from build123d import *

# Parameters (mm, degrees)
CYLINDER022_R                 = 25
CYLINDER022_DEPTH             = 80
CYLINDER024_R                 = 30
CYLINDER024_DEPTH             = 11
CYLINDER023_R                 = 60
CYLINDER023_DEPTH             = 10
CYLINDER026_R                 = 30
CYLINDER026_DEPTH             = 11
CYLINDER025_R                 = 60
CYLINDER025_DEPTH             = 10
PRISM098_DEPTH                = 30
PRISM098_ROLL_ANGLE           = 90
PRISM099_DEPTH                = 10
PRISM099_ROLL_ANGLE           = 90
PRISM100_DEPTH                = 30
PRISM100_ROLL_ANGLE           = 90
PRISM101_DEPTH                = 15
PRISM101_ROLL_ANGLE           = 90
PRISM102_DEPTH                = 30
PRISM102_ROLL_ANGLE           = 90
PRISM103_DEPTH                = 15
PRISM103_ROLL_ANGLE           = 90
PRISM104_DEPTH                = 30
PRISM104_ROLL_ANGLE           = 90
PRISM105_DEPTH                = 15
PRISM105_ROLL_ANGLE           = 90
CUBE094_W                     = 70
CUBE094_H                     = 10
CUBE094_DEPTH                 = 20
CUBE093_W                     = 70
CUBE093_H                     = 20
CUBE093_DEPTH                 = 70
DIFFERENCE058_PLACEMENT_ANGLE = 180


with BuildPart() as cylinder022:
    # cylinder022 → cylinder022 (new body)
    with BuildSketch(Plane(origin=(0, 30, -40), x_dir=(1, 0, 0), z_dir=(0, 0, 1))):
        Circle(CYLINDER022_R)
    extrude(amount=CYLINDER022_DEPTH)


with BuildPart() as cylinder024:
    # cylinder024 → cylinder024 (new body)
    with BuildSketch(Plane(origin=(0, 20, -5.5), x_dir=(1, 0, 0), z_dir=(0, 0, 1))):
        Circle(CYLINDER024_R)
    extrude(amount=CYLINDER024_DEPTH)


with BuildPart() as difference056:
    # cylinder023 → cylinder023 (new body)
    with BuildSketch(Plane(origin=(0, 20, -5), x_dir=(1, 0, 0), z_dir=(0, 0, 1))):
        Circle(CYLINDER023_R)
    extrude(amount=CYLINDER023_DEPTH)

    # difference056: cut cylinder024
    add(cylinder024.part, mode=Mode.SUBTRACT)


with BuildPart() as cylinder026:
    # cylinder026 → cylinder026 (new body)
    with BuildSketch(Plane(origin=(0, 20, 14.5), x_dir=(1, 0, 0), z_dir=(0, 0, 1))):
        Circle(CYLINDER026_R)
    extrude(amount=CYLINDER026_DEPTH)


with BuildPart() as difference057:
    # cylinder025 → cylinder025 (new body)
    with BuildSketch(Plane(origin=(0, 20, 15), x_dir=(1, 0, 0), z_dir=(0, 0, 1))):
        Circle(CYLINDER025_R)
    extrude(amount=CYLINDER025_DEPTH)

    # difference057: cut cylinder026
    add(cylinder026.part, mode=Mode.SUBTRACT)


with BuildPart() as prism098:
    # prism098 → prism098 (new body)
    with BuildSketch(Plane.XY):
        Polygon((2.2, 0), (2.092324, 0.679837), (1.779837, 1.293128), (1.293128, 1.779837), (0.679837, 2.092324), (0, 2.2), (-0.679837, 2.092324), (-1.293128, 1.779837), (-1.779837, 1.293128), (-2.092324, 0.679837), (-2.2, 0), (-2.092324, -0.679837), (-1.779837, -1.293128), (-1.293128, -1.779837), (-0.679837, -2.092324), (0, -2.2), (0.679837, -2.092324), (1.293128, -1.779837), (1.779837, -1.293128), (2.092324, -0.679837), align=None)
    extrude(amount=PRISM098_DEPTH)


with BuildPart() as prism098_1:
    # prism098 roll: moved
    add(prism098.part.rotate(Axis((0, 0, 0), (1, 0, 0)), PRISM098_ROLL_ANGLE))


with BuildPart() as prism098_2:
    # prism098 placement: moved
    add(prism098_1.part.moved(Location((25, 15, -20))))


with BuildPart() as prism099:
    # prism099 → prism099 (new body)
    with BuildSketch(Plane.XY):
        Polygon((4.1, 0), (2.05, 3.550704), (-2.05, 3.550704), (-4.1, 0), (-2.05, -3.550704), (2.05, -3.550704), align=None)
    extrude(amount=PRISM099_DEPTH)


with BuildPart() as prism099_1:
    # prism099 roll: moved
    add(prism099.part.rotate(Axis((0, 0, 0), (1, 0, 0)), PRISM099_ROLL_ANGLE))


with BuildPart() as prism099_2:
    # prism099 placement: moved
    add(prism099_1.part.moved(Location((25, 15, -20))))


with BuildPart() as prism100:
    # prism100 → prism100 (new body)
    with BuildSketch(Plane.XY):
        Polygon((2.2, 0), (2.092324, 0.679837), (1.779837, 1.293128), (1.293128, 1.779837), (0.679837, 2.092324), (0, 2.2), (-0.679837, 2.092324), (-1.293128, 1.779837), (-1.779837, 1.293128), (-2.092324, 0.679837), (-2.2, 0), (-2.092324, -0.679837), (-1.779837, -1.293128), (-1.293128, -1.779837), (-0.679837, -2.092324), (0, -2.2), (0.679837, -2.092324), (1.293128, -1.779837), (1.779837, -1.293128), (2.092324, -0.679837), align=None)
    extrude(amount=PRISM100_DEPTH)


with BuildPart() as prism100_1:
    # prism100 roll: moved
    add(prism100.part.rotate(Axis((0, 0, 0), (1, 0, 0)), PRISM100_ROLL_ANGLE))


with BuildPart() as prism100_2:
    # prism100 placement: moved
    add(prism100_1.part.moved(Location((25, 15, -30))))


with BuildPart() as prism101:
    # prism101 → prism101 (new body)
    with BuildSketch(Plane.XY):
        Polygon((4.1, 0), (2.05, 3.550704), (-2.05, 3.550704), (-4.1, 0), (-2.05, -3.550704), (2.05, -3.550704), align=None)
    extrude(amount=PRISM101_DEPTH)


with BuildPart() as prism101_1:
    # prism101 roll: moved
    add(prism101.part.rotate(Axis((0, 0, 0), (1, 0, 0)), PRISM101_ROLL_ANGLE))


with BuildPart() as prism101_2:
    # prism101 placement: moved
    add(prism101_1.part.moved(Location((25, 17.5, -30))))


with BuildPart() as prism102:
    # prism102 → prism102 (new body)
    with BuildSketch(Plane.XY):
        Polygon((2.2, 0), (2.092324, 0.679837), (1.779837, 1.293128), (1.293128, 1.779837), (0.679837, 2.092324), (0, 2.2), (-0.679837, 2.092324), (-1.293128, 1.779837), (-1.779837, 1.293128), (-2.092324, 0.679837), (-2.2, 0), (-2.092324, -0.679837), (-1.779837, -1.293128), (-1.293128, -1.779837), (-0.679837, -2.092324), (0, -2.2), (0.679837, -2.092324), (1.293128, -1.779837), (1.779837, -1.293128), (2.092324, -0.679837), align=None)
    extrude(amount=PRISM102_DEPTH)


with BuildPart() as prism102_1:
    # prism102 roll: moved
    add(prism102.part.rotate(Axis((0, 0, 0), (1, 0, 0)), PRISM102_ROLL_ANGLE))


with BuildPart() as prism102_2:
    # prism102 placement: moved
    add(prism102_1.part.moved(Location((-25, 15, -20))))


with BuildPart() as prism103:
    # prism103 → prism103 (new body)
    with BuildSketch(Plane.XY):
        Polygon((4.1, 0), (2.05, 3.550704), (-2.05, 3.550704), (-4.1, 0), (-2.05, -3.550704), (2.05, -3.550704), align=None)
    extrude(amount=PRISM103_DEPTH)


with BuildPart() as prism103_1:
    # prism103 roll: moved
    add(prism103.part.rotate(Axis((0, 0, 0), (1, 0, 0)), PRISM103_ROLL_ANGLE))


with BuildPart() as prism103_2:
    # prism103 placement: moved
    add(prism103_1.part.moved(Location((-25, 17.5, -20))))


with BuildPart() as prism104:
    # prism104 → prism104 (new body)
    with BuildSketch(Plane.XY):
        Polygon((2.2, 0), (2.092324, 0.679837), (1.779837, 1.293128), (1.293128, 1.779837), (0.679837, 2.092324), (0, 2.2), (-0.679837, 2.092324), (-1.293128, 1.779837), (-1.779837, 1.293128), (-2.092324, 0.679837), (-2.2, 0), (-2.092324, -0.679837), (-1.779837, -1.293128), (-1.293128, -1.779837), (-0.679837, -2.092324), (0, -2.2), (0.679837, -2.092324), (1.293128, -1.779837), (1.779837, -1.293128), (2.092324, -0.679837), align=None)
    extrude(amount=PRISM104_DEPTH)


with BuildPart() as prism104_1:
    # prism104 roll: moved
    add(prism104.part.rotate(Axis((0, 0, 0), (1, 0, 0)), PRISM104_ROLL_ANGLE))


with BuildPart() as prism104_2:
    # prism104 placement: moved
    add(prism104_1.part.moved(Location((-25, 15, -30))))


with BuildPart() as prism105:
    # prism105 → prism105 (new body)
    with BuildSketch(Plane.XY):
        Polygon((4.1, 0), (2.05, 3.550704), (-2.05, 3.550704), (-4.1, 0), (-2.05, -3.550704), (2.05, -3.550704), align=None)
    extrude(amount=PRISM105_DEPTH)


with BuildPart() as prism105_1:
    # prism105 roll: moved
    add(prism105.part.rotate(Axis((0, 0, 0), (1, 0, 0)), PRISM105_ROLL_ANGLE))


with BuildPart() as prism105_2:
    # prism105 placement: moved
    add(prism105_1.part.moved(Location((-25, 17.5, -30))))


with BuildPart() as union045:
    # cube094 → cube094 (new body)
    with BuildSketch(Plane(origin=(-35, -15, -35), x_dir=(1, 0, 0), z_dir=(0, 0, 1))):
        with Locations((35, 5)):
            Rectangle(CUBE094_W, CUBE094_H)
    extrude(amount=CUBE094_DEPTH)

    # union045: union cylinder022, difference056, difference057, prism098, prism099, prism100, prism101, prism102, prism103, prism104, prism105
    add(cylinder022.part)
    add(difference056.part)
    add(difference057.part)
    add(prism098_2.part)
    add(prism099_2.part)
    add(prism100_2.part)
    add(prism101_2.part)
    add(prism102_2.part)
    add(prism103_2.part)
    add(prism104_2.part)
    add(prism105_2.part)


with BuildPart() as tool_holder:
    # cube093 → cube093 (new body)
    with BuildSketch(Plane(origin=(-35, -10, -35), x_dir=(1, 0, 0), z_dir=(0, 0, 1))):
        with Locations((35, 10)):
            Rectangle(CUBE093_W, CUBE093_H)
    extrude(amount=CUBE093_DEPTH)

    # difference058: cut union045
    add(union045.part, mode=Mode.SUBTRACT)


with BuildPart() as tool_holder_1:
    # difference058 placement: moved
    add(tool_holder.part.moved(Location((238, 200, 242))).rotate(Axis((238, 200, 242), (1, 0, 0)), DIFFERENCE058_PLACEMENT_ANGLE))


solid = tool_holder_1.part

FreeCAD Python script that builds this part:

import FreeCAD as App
import Part
import Sketcher
Q = App.Units.Quantity


def add_polygon(sketch, points):
    """Adds a closed chain of lines whose ends are joined by coincident constraints."""
    first, n = sketch.GeometryCount, len(points)
    for a, b in zip(points, points[1:] + points[:1]):
        sketch.addGeometry(Part.LineSegment(App.Vector(*a, 0), App.Vector(*b, 0)), False)
    for i in range(n):
        sketch.addConstraint(Sketcher.Constraint("Coincident", first + i, 2, first + (i + 1) % n, 1))

doc = App.newDocument("Part")
params = doc.addObject("Spreadsheet::Sheet", "Params")
for row, (alias, value) in enumerate([
    ("sketch1_diameter", "50 mm"),
    ("pad1_length", "80 mm"),
    ("sketch2_diameter", "60 mm"),
    ("pad2_length", "11 mm"),
    ("sketch3_diameter", "120 mm"),
    ("pad3_length", "10 mm"),
    ("sketch4_diameter", "60 mm"),
    ("pad4_length", "11 mm"),
    ("sketch5_diameter", "120 mm"),
    ("pad5_length", "10 mm"),
    ("pad6_length", "30 mm"),
    ("sketch7_width", "4.1 mm"),
    ("sketch7_length", "4.1 mm"),
    ("pad7_length", "10 mm"),
    ("pad8_length", "30 mm"),
    ("sketch9_width", "4.1 mm"),
    ("sketch9_length", "4.1 mm"),
    ("pad9_length", "15 mm"),
    ("pad10_length", "30 mm"),
    ("sketch11_width", "4.1 mm"),
    ("sketch11_length", "4.1 mm"),
    ("pad11_length", "15 mm"),
    ("pad12_length", "30 mm"),
    ("sketch13_width", "4.1 mm"),
    ("sketch13_length", "4.1 mm"),
    ("pad13_length", "15 mm"),
    ("sketch14_width", "70 mm"),
    ("sketch14_height", "10 mm"),
    ("pad14_length", "20 mm"),
    ("sketch15_width", "70 mm"),
    ("sketch15_height", "20 mm"),
    ("pad15_length", "70 mm"),
], start=1):
    params.set(f"A{row}", alias)
    params.set(f"B{row}", "=" + value)
    params.setAlias(f"B{row}", alias)

body = doc.addObject("PartDesign::Body", "Body")

sketch1 = doc.addObject("Sketcher::SketchObject", "Sketch")
body.addObject(sketch1)
sketch1.AttachmentSupport = (doc.XY_Plane, [""])
sketch1.MapMode = "FlatFace"
sketch1.AttachmentOffset = App.Placement(App.Vector(0, 0, -40), App.Rotation())
sketch1.addGeometry(Part.Circle(App.Vector(0, 30, 0), App.Vector(0, 0, 1), 25), False)
sketch1.addConstraint([
    Sketcher.Constraint("PointOnObject", 0, 3, -2),
    Sketcher.Constraint("Diameter", 0, Q("50 mm")),
    Sketcher.Constraint("DistanceY", -1, 1, 0, 3, Q("30 mm")),
])
sketch1.setExpression("Constraints[1]", "Params.sketch1_diameter")
pad1 = doc.addObject("PartDesign::Pad", "Pad")
body.addObject(pad1)
pad1.Profile = sketch1
pad1.setExpression("Length", "Params.pad1_length")
body2 = doc.addObject("PartDesign::Body", "Body001")

sketch2 = doc.addObject("Sketcher::SketchObject", "Sketch001")
body2.addObject(sketch2)
sketch2.AttachmentSupport = (doc.getObject("XY_Plane001"), [""])
sketch2.MapMode = "FlatFace"
sketch2.AttachmentOffset = App.Placement(App.Vector(0, 0, -5.5), App.Rotation())
sketch2.addGeometry(Part.Circle(App.Vector(0, 20, 0), App.Vector(0, 0, 1), 30), False)
sketch2.addConstraint([
    Sketcher.Constraint("PointOnObject", 0, 3, -2),
    Sketcher.Constraint("Diameter", 0, Q("60 mm")),
    Sketcher.Constraint("DistanceY", -1, 1, 0, 3, Q("20 mm")),
])
sketch2.setExpression("Constraints[1]", "Params.sketch2_diameter")
pad2 = doc.addObject("PartDesign::Pad", "Pad001")
body2.addObject(pad2)
pad2.Profile = sketch2
pad2.setExpression("Length", "Params.pad2_length")
body3 = doc.addObject("PartDesign::Body", "Body002")

sketch3 = doc.addObject("Sketcher::SketchObject", "Sketch002")
body3.addObject(sketch3)
sketch3.AttachmentSupport = (doc.getObject("XY_Plane002"), [""])
sketch3.MapMode = "FlatFace"
sketch3.AttachmentOffset = App.Placement(App.Vector(0, 0, -5), App.Rotation())
sketch3.addGeometry(Part.Circle(App.Vector(0, 20, 0), App.Vector(0, 0, 1), 60), False)
sketch3.addConstraint([
    Sketcher.Constraint("PointOnObject", 0, 3, -2),
    Sketcher.Constraint("Diameter", 0, Q("120 mm")),
    Sketcher.Constraint("DistanceY", -1, 1, 0, 3, Q("20 mm")),
])
sketch3.setExpression("Constraints[1]", "Params.sketch3_diameter")
pad3 = doc.addObject("PartDesign::Pad", "Pad002")
body3.addObject(pad3)
pad3.Profile = sketch3
pad3.setExpression("Length", "Params.pad3_length")
doc.recompute()

boolean = doc.addObject("PartDesign::Boolean", "Boolean")
body3.addObject(boolean)
boolean.Type = "Cut"
boolean.addObjects([body2])
body4 = doc.addObject("PartDesign::Body", "Body003")

sketch4 = doc.addObject("Sketcher::SketchObject", "Sketch003")
body4.addObject(sketch4)
sketch4.AttachmentSupport = (doc.getObject("XY_Plane003"), [""])
sketch4.MapMode = "FlatFace"
sketch4.AttachmentOffset = App.Placement(App.Vector(0, 0, 14.5), App.Rotation())
sketch4.addGeometry(Part.Circle(App.Vector(0, 20, 0), App.Vector(0, 0, 1), 30), False)
sketch4.addConstraint([
    Sketcher.Constraint("PointOnObject", 0, 3, -2),
    Sketcher.Constraint("Diameter", 0, Q("60 mm")),
    Sketcher.Constraint("DistanceY", -1, 1, 0, 3, Q("20 mm")),
])
sketch4.setExpression("Constraints[1]", "Params.sketch4_diameter")
pad4 = doc.addObject("PartDesign::Pad", "Pad003")
body4.addObject(pad4)
pad4.Profile = sketch4
pad4.setExpression("Length", "Params.pad4_length")
body5 = doc.addObject("PartDesign::Body", "Body004")

sketch5 = doc.addObject("Sketcher::SketchObject", "Sketch004")
body5.addObject(sketch5)
sketch5.AttachmentSupport = (doc.getObject("XY_Plane004"), [""])
sketch5.MapMode = "FlatFace"
sketch5.AttachmentOffset = App.Placement(App.Vector(0, 0, 15), App.Rotation())
sketch5.addGeometry(Part.Circle(App.Vector(0, 20, 0), App.Vector(0, 0, 1), 60), False)
sketch5.addConstraint([
    Sketcher.Constraint("PointOnObject", 0, 3, -2),
    Sketcher.Constraint("Diameter", 0, Q("120 mm")),
    Sketcher.Constraint("DistanceY", -1, 1, 0, 3, Q("20 mm")),
])
sketch5.setExpression("Constraints[1]", "Params.sketch5_diameter")
pad5 = doc.addObject("PartDesign::Pad", "Pad004")
body5.addObject(pad5)
pad5.Profile = sketch5
pad5.setExpression("Length", "Params.pad5_length")
doc.recompute()

boolean2 = doc.addObject("PartDesign::Boolean", "Boolean001")
body5.addObject(boolean2)
boolean2.Type = "Cut"
boolean2.addObjects([body4])
body6 = doc.addObject("PartDesign::Body", "Body005")

sketch6 = doc.addObject("Sketcher::SketchObject", "Sketch005")
body6.addObject(sketch6)
sketch6.AttachmentSupport = (doc.getObject("XY_Plane005"), [""])
sketch6.MapMode = "FlatFace"
add_polygon(sketch6, [(2.2, 0), (2.092324, 0.679837), (1.779837, 1.293128), (1.293128, 1.779837), (0.679837, 2.092324), (0, 2.2), (-0.679837, 2.092324), (-1.293128, 1.779837), (-1.779837, 1.293128), (-2.092324, 0.679837), (-2.2, 0), (-2.092324, -0.679837), (-1.779837, -1.293128), (-1.293128, -1.779837), (-0.679837, -2.092324), (0, -2.2), (0.679837, -2.092324), (1.293128, -1.779837), (1.779837, -1.293128), (2.092324, -0.679837)])
sketch6.addConstraint([
    Sketcher.Constraint("Symmetric", 0, 2, 10, 2, -1, 1),
    Sketcher.Constraint("Symmetric", 1, 2, 11, 2, -1, 1),
    Sketcher.Constraint("Symmetric", 2, 2, 12, 2, -1, 1),
    Sketcher.Constraint("Symmetric", 3, 2, 13, 2, -1, 1),
    Sketcher.Constraint("Symmetric", 4, 2, 14, 2, -1, 1),
    Sketcher.Constraint("Symmetric", 5, 2, 15, 2, -1, 1),
    Sketcher.Constraint("Symmetric", 6, 2, 16, 2, -1, 1),
    Sketcher.Constraint("Symmetric", 7, 2, 17, 2, -1, 1),
    Sketcher.Constraint("Symmetric", 8, 2, 18, 2, -1, 1),
    Sketcher.Constraint("Symmetric", 9, 2, 19, 2, -1, 1),
    Sketcher.Constraint("Symmetric", 3, 2, 5, 2, -2),
    Sketcher.Constraint("Symmetric", 2, 2, 6, 2, -2),
    Sketcher.Constraint("Symmetric", 1, 2, 7, 2, -2),
    Sketcher.Constraint("Symmetric", 0, 2, 8, 2, -2),
    Sketcher.Constraint("PointOnObject", 4, 2, -2),
    Sketcher.Constraint("PointOnObject", 9, 2, -1),
    Sketcher.Constraint("Perpendicular", 0, 5),
    Sketcher.Constraint("Perpendicular", 1, 6),
    Sketcher.Constraint("Perpendicular", 2, 7),
    Sketcher.Constraint("Equal", 0, 1),
    Sketcher.Constraint("Equal", 1, 2),
    Sketcher.Constraint("Equal", 2, 3),
    Sketcher.Constraint("Equal", 3, 4),
    Sketcher.Constraint("DistanceY", -1, 1, 4, 2, Q("2.2 mm")),
    Sketcher.Constraint("DistanceY", 0, 2, 2, 2, Q("1.1 mm")),
    Sketcher.Constraint("Distance", 0, Q("0.688311 mm")),
])
pad6 = doc.addObject("PartDesign::Pad", "Pad005")
body6.addObject(pad6)
pad6.Profile = sketch6
pad6.setExpression("Length", "Params.pad6_length")
body7 = doc.addObject("PartDesign::Body", "Body006")
doc.recompute()

body6.Placement = App.Placement(App.Vector(0, 0, 0), App.Rotation(App.Vector(1, 0, 0), 90))
boolean3 = doc.addObject("PartDesign::Boolean", "Boolean002")
body7.addObject(boolean3)
boolean3.Type = "Fuse"
boolean3.addObjects([body6])
body8 = doc.addObject("PartDesign::Body", "Body007")
doc.recompute()

body7.Placement = App.Placement(App.Vector(25, 15, -20), App.Rotation(App.Vector(0, 0, 1), 0))
boolean4 = doc.addObject("PartDesign::Boolean", "Boolean003")
body8.addObject(boolean4)
boolean4.Type = "Fuse"
boolean4.addObjects([body7])
body9 = doc.addObject("PartDesign::Body", "Body008")

sketch7 = doc.addObject("Sketcher::SketchObject", "Sketch006")
body9.addObject(sketch7)
sketch7.AttachmentSupport = (doc.getObject("XY_Plane008"), [""])
sketch7.MapMode = "FlatFace"
add_polygon(sketch7, [(4.1, 0), (2.05, 3.550704), (-2.05, 3.550704), (-4.1, 0), (-2.05, -3.550704), (2.05, -3.550704)])
sketch7.addConstraint([
    Sketcher.Constraint("Horizontal", 1),
    Sketcher.Constraint("Horizontal", 4),
    Sketcher.Constraint("Symmetric", 0, 2, 3, 2, -1, 1),
    Sketcher.Constraint("Symmetric", 2, 2, 5, 2, -1, 1),
    Sketcher.Constraint("PointOnObject", 2, 2, -1),
    Sketcher.Constraint("Parallel", 2, 5),
    Sketcher.Constraint("Vertical", 1, 2, 3, 2),
    Sketcher.Constraint("Angle", 0, Q("120.000001 deg")),
    Sketcher.Constraint("DistanceX", 1, 2, 1, 1, Q("4.1 mm")),
    Sketcher.Constraint("Distance", 0, Q("4.1 mm")),
])
sketch7.setExpression("Constraints[14]", "Params.sketch7_width")
sketch7.setExpression("Constraints[15]", "Params.sketch7_length")
pad7 = doc.addObject("PartDesign::Pad", "Pad006")
body9.addObject(pad7)
pad7.Profile = sketch7
pad7.setExpression("Length", "Params.pad7_length")
body10 = doc.addObject("PartDesign::Body", "Body009")
doc.recompute()

body9.Placement = App.Placement(App.Vector(0, 0, 0), App.Rotation(App.Vector(1, 0, 0), 90))
boolean5 = doc.addObject("PartDesign::Boolean", "Boolean004")
body10.addObject(boolean5)
boolean5.Type = "Fuse"
boolean5.addObjects([body9])
body11 = doc.addObject("PartDesign::Body", "Body010")
doc.recompute()

body10.Placement = App.Placement(App.Vector(25, 15, -20), App.Rotation(App.Vector(0, 0, 1), 0))
boolean6 = doc.addObject("PartDesign::Boolean", "Boolean005")
body11.addObject(boolean6)
boolean6.Type = "Fuse"
boolean6.addObjects([body10])
body12 = doc.addObject("PartDesign::Body", "Body011")

sketch8 = doc.addObject("Sketcher::SketchObject", "Sketch007")
body12.addObject(sketch8)
sketch8.AttachmentSupport = (doc.getObject("XY_Plane011"), [""])
sketch8.MapMode = "FlatFace"
add_polygon(sketch8, [(2.2, 0), (2.092324, 0.679837), (1.779837, 1.293128), (1.293128, 1.779837), (0.679837, 2.092324), (0, 2.2), (-0.679837, 2.092324), (-1.293128, 1.779837), (-1.779837, 1.293128), (-2.092324, 0.679837), (-2.2, 0), (-2.092324, -0.679837), (-1.779837, -1.293128), (-1.293128, -1.779837), (-0.679837, -2.092324), (0, -2.2), (0.679837, -2.092324), (1.293128, -1.779837), (1.779837, -1.293128), (2.092324, -0.679837)])
sketch8.addConstraint([
    Sketcher.Constraint("Symmetric", 0, 2, 10, 2, -1, 1),
    Sketcher.Constraint("Symmetric", 1, 2, 11, 2, -1, 1),
    Sketcher.Constraint("Symmetric", 2, 2, 12, 2, -1, 1),
    Sketcher.Constraint("Symmetric", 3, 2, 13, 2, -1, 1),
    Sketcher.Constraint("Symmetric", 4, 2, 14, 2, -1, 1),
    Sketcher.Constraint("Symmetric", 5, 2, 15, 2, -1, 1),
    Sketcher.Constraint("Symmetric", 6, 2, 16, 2, -1, 1),
    Sketcher.Constraint("Symmetric", 7, 2, 17, 2, -1, 1),
    Sketcher.Constraint("Symmetric", 8, 2, 18, 2, -1, 1),
    Sketcher.Constraint("Symmetric", 9, 2, 19, 2, -1, 1),
    Sketcher.Constraint("Symmetric", 3, 2, 5, 2, -2),
    Sketcher.Constraint("Symmetric", 2, 2, 6, 2, -2),
    Sketcher.Constraint("Symmetric", 1, 2, 7, 2, -2),
    Sketcher.Constraint("Symmetric", 0, 2, 8, 2, -2),
    Sketcher.Constraint("PointOnObject", 4, 2, -2),
    Sketcher.Constraint("PointOnObject", 9, 2, -1),
    Sketcher.Constraint("Perpendicular", 0, 5),
    Sketcher.Constraint("Perpendicular", 1, 6),
    Sketcher.Constraint("Perpendicular", 2, 7),
    Sketcher.Constraint("Equal", 0, 1),
    Sketcher.Constraint("Equal", 1, 2),
    Sketcher.Constraint("Equal", 2, 3),
    Sketcher.Constraint("Equal", 3, 4),
    Sketcher.Constraint("DistanceY", -1, 1, 4, 2, Q("2.2 mm")),
    Sketcher.Constraint("DistanceY", 0, 2, 2, 2, Q("1.1 mm")),
    Sketcher.Constraint("Distance", 0, Q("0.688311 mm")),
])
pad8 = doc.addObject("PartDesign::Pad", "Pad007")
body12.addObject(pad8)
pad8.Profile = sketch8
pad8.setExpression("Length", "Params.pad8_length")
body13 = doc.addObject("PartDesign::Body", "Body012")
doc.recompute()

body12.Placement = App.Placement(App.Vector(0, 0, 0), App.Rotation(App.Vector(1, 0, 0), 90))
boolean7 = doc.addObject("PartDesign::Boolean", "Boolean006")
body13.addObject(boolean7)
boolean7.Type = "Fuse"
boolean7.addObjects([body12])
body14 = doc.addObject("PartDesign::Body", "Body013")
doc.recompute()

body13.Placement = App.Placement(App.Vector(25, 15, -30), App.Rotation(App.Vector(0, 0, 1), 0))
boolean8 = doc.addObject("PartDesign::Boolean", "Boolean007")
body14.addObject(boolean8)
boolean8.Type = "Fuse"
boolean8.addObjects([body13])
body15 = doc.addObject("PartDesign::Body", "Body014")

sketch9 = doc.addObject("Sketcher::SketchObject", "Sketch008")
body15.addObject(sketch9)
sketch9.AttachmentSupport = (doc.getObject("XY_Plane014"), [""])
sketch9.MapMode = "FlatFace"
add_polygon(sketch9, [(4.1, 0), (2.05, 3.550704), (-2.05, 3.550704), (-4.1, 0), (-2.05, -3.550704), (2.05, -3.550704)])
sketch9.addConstraint([
    Sketcher.Constraint("Horizontal", 1),
    Sketcher.Constraint("Horizontal", 4),
    Sketcher.Constraint("Symmetric", 0, 2, 3, 2, -1, 1),
    Sketcher.Constraint("Symmetric", 2, 2, 5, 2, -1, 1),
    Sketcher.Constraint("PointOnObject", 2, 2, -1),
    Sketcher.Constraint("Parallel", 2, 5),
    Sketcher.Constraint("Vertical", 1, 2, 3, 2),
    Sketcher.Constraint("Angle", 0, Q("120.000001 deg")),
    Sketcher.Constraint("DistanceX", 1, 2, 1, 1, Q("4.1 mm")),
    Sketcher.Constraint("Distance", 0, Q("4.1 mm")),
])
sketch9.setExpression("Constraints[14]", "Params.sketch9_width")
sketch9.setExpression("Constraints[15]", "Params.sketch9_length")
pad9 = doc.addObject("PartDesign::Pad", "Pad008")
body15.addObject(pad9)
pad9.Profile = sketch9
pad9.setExpression("Length", "Params.pad9_length")
body16 = doc.addObject("PartDesign::Body", "Body015")
doc.recompute()

body15.Placement = App.Placement(App.Vector(0, 0, 0), App.Rotation(App.Vector(1, 0, 0), 90))
boolean9 = doc.addObject("PartDesign::Boolean", "Boolean008")
body16.addObject(boolean9)
boolean9.Type = "Fuse"
boolean9.addObjects([body15])
body17 = doc.addObject("PartDesign::Body", "Body016")
doc.recompute()

body16.Placement = App.Placement(App.Vector(25, 17.5, -30), App.Rotation(App.Vector(0, 0, 1), 0))
boolean10 = doc.addObject("PartDesign::Boolean", "Boolean009")
body17.addObject(boolean10)
boolean10.Type = "Fuse"
boolean10.addObjects([body16])
body18 = doc.addObject("PartDesign::Body", "Body017")

sketch10 = doc.addObject("Sketcher::SketchObject", "Sketch009")
body18.addObject(sketch10)
sketch10.AttachmentSupport = (doc.getObject("XY_Plane017"), [""])
sketch10.MapMode = "FlatFace"
add_polygon(sketch10, [(2.2, 0), (2.092324, 0.679837), (1.779837, 1.293128), (1.293128, 1.779837), (0.679837, 2.092324), (0, 2.2), (-0.679837, 2.092324), (-1.293128, 1.779837), (-1.779837, 1.293128), (-2.092324, 0.679837), (-2.2, 0), (-2.092324, -0.679837), (-1.779837, -1.293128), (-1.293128, -1.779837), (-0.679837, -2.092324), (0, -2.2), (0.679837, -2.092324), (1.293128, -1.779837), (1.779837, -1.293128), (2.092324, -0.679837)])
sketch10.addConstraint([
    Sketcher.Constraint("Symmetric", 0, 2, 10, 2, -1, 1),
    Sketcher.Constraint("Symmetric", 1, 2, 11, 2, -1, 1),
    Sketcher.Constraint("Symmetric", 2, 2, 12, 2, -1, 1),
    Sketcher.Constraint("Symmetric", 3, 2, 13, 2, -1, 1),
    Sketcher.Constraint("Symmetric", 4, 2, 14, 2, -1, 1),
    Sketcher.Constraint("Symmetric", 5, 2, 15, 2, -1, 1),
    Sketcher.Constraint("Symmetric", 6, 2, 16, 2, -1, 1),
    Sketcher.Constraint("Symmetric", 7, 2, 17, 2, -1, 1),
    Sketcher.Constraint("Symmetric", 8, 2, 18, 2, -1, 1),
    Sketcher.Constraint("Symmetric", 9, 2, 19, 2, -1, 1),
    Sketcher.Constraint("Symmetric", 3, 2, 5, 2, -2),
    Sketcher.Constraint("Symmetric", 2, 2, 6, 2, -2),
    Sketcher.Constraint("Symmetric", 1, 2, 7, 2, -2),
    Sketcher.Constraint("Symmetric", 0, 2, 8, 2, -2),
    Sketcher.Constraint("PointOnObject", 4, 2, -2),
    Sketcher.Constraint("PointOnObject", 9, 2, -1),
    Sketcher.Constraint("Perpendicular", 0, 5),
    Sketcher.Constraint("Perpendicular", 1, 6),
    Sketcher.Constraint("Perpendicular", 2, 7),
    Sketcher.Constraint("Equal", 0, 1),
    Sketcher.Constraint("Equal", 1, 2),
    Sketcher.Constraint("Equal", 2, 3),
    Sketcher.Constraint("Equal", 3, 4),
    Sketcher.Constraint("DistanceY", -1, 1, 4, 2, Q("2.2 mm")),
    Sketcher.Constraint("DistanceY", 0, 2, 2, 2, Q("1.1 mm")),
    Sketcher.Constraint("Distance", 0, Q("0.688311 mm")),
])
pad10 = doc.addObject("PartDesign::Pad", "Pad009")
body18.addObject(pad10)
pad10.Profile = sketch10
pad10.setExpression("Length", "Params.pad10_length")
body19 = doc.addObject("PartDesign::Body", "Body018")
doc.recompute()

body18.Placement = App.Placement(App.Vector(0, 0, 0), App.Rotation(App.Vector(1, 0, 0), 90))
boolean11 = doc.addObject("PartDesign::Boolean", "Boolean010")
body19.addObject(boolean11)
boolean11.Type = "Fuse"
boolean11.addObjects([body18])
body20 = doc.addObject("PartDesign::Body", "Body019")
doc.recompute()

body19.Placement = App.Placement(App.Vector(-25, 15, -20), App.Rotation(App.Vector(0, 0, 1), 0))
boolean12 = doc.addObject("PartDesign::Boolean", "Boolean011")
body20.addObject(boolean12)
boolean12.Type = "Fuse"
boolean12.addObjects([body19])
body21 = doc.addObject("PartDesign::Body", "Body020")

sketch11 = doc.addObject("Sketcher::SketchObject", "Sketch010")
body21.addObject(sketch11)
sketch11.AttachmentSupport = (doc.getObject("XY_Plane020"), [""])
sketch11.MapMode = "FlatFace"
add_polygon(sketch11, [(4.1, 0), (2.05, 3.550704), (-2.05, 3.550704), (-4.1, 0), (-2.05, -3.550704), (2.05, -3.550704)])
sketch11.addConstraint([
    Sketcher.Constraint("Horizontal", 1),
    Sketcher.Constraint("Horizontal", 4),
    Sketcher.Constraint("Symmetric", 0, 2, 3, 2, -1, 1),
    Sketcher.Constraint("Symmetric", 2, 2, 5, 2, -1, 1),
    Sketcher.Constraint("PointOnObject", 2, 2, -1),
    Sketcher.Constraint("Parallel", 2, 5),
    Sketcher.Constraint("Vertical", 1, 2, 3, 2),
    Sketcher.Constraint("Angle", 0, Q("120.000001 deg")),
    Sketcher.Constraint("DistanceX", 1, 2, 1, 1, Q("4.1 mm")),
    Sketcher.Constraint("Distance", 0, Q("4.1 mm")),
])
sketch11.setExpression("Constraints[14]", "Params.sketch11_width")
sketch11.setExpression("Constraints[15]", "Params.sketch11_length")
pad11 = doc.addObject("PartDesign::Pad", "Pad010")
body21.addObject(pad11)
pad11.Profile = sketch11
pad11.setExpression("Length", "Params.pad11_length")
body22 = doc.addObject("PartDesign::Body", "Body021")
doc.recompute()

body21.Placement = App.Placement(App.Vector(0, 0, 0), App.Rotation(App.Vector(1, 0, 0), 90))
boolean13 = doc.addObject("PartDesign::Boolean", "Boolean012")
body22.addObject(boolean13)
boolean13.Type = "Fuse"
boolean13.addObjects([body21])
body23 = doc.addObject("PartDesign::Body", "Body022")
doc.recompute()

body22.Placement = App.Placement(App.Vector(-25, 17.5, -20), App.Rotation(App.Vector(0, 0, 1), 0))
boolean14 = doc.addObject("PartDesign::Boolean", "Boolean013")
body23.addObject(boolean14)
boolean14.Type = "Fuse"
boolean14.addObjects([body22])
body24 = doc.addObject("PartDesign::Body", "Body023")

sketch12 = doc.addObject("Sketcher::SketchObject", "Sketch011")
body24.addObject(sketch12)
sketch12.AttachmentSupport = (doc.getObject("XY_Plane023"), [""])
sketch12.MapMode = "FlatFace"
add_polygon(sketch12, [(2.2, 0), (2.092324, 0.679837), (1.779837, 1.293128), (1.293128, 1.779837), (0.679837, 2.092324), (0, 2.2), (-0.679837, 2.092324), (-1.293128, 1.779837), (-1.779837, 1.293128), (-2.092324, 0.679837), (-2.2, 0), (-2.092324, -0.679837), (-1.779837, -1.293128), (-1.293128, -1.779837), (-0.679837, -2.092324), (0, -2.2), (0.679837, -2.092324), (1.293128, -1.779837), (1.779837, -1.293128), (2.092324, -0.679837)])
sketch12.addConstraint([
    Sketcher.Constraint("Symmetric", 0, 2, 10, 2, -1, 1),
    Sketcher.Constraint("Symmetric", 1, 2, 11, 2, -1, 1),
    Sketcher.Constraint("Symmetric", 2, 2, 12, 2, -1, 1),
    Sketcher.Constraint("Symmetric", 3, 2, 13, 2, -1, 1),
    Sketcher.Constraint("Symmetric", 4, 2, 14, 2, -1, 1),
    Sketcher.Constraint("Symmetric", 5, 2, 15, 2, -1, 1),
    Sketcher.Constraint("Symmetric", 6, 2, 16, 2, -1, 1),
    Sketcher.Constraint("Symmetric", 7, 2, 17, 2, -1, 1),
    Sketcher.Constraint("Symmetric", 8, 2, 18, 2, -1, 1),
    Sketcher.Constraint("Symmetric", 9, 2, 19, 2, -1, 1),
    Sketcher.Constraint("Symmetric", 3, 2, 5, 2, -2),
    Sketcher.Constraint("Symmetric", 2, 2, 6, 2, -2),
    Sketcher.Constraint("Symmetric", 1, 2, 7, 2, -2),
    Sketcher.Constraint("Symmetric", 0, 2, 8, 2, -2),
    Sketcher.Constraint("PointOnObject", 4, 2, -2),
    Sketcher.Constraint("PointOnObject", 9, 2, -1),
    Sketcher.Constraint("Perpendicular", 0, 5),
    Sketcher.Constraint("Perpendicular", 1, 6),
    Sketcher.Constraint("Perpendicular", 2, 7),
    Sketcher.Constraint("Equal", 0, 1),
    Sketcher.Constraint("Equal", 1, 2),
    Sketcher.Constraint("Equal", 2, 3),
    Sketcher.Constraint("Equal", 3, 4),
    Sketcher.Constraint("DistanceY", -1, 1, 4, 2, Q("2.2 mm")),
    Sketcher.Constraint("DistanceY", 0, 2, 2, 2, Q("1.1 mm")),
    Sketcher.Constraint("Distance", 0, Q("0.688311 mm")),
])
pad12 = doc.addObject("PartDesign::Pad", "Pad011")
body24.addObject(pad12)
pad12.Profile = sketch12
pad12.setExpression("Length", "Params.pad12_length")
body25 = doc.addObject("PartDesign::Body", "Body024")
doc.recompute()

body24.Placement = App.Placement(App.Vector(0, 0, 0), App.Rotation(App.Vector(1, 0, 0), 90))
boolean15 = doc.addObject("PartDesign::Boolean", "Boolean014")
body25.addObject(boolean15)
boolean15.Type = "Fuse"
boolean15.addObjects([body24])
body26 = doc.addObject("PartDesign::Body", "Body025")
doc.recompute()

body25.Placement = App.Placement(App.Vector(-25, 15, -30), App.Rotation(App.Vector(0, 0, 1), 0))
boolean16 = doc.addObject("PartDesign::Boolean", "Boolean015")
body26.addObject(boolean16)
boolean16.Type = "Fuse"
boolean16.addObjects([body25])
body27 = doc.addObject("PartDesign::Body", "Body026")

sketch13 = doc.addObject("Sketcher::SketchObject", "Sketch012")
body27.addObject(sketch13)
sketch13.AttachmentSupport = (doc.getObject("XY_Plane026"), [""])
sketch13.MapMode = "FlatFace"
add_polygon(sketch13, [(4.1, 0), (2.05, 3.550704), (-2.05, 3.550704), (-4.1, 0), (-2.05, -3.550704), (2.05, -3.550704)])
sketch13.addConstraint([
    Sketcher.Constraint("Horizontal", 1),
    Sketcher.Constraint("Horizontal", 4),
    Sketcher.Constraint("Symmetric", 0, 2, 3, 2, -1, 1),
    Sketcher.Constraint("Symmetric", 2, 2, 5, 2, -1, 1),
    Sketcher.Constraint("PointOnObject", 2, 2, -1),
    Sketcher.Constraint("Parallel", 2, 5),
    Sketcher.Constraint("Vertical", 1, 2, 3, 2),
    Sketcher.Constraint("Angle", 0, Q("120.000001 deg")),
    Sketcher.Constraint("DistanceX", 1, 2, 1, 1, Q("4.1 mm")),
    Sketcher.Constraint("Distance", 0, Q("4.1 mm")),
])
sketch13.setExpression("Constraints[14]", "Params.sketch13_width")
sketch13.setExpression("Constraints[15]", "Params.sketch13_length")
pad13 = doc.addObject("PartDesign::Pad", "Pad012")
body27.addObject(pad13)
pad13.Profile = sketch13
pad13.setExpression("Length", "Params.pad13_length")
body28 = doc.addObject("PartDesign::Body", "Body027")
doc.recompute()

body27.Placement = App.Placement(App.Vector(0, 0, 0), App.Rotation(App.Vector(1, 0, 0), 90))
boolean17 = doc.addObject("PartDesign::Boolean", "Boolean016")
body28.addObject(boolean17)
boolean17.Type = "Fuse"
boolean17.addObjects([body27])
body29 = doc.addObject("PartDesign::Body", "Body028")
doc.recompute()

body28.Placement = App.Placement(App.Vector(-25, 17.5, -30), App.Rotation(App.Vector(0, 0, 1), 0))
boolean18 = doc.addObject("PartDesign::Boolean", "Boolean017")
body29.addObject(boolean18)
boolean18.Type = "Fuse"
boolean18.addObjects([body28])
body30 = doc.addObject("PartDesign::Body", "Body029")
body30.AllowCompound = True

sketch14 = doc.addObject("Sketcher::SketchObject", "Sketch013")
body30.addObject(sketch14)
sketch14.AttachmentSupport = (doc.getObject("XY_Plane029"), [""])
sketch14.MapMode = "FlatFace"
sketch14.AttachmentOffset = App.Placement(App.Vector(0, 0, -35), App.Rotation())
add_polygon(sketch14, [(-35, -5), (-35, -15), (35, -15), (35, -5)])
sketch14.addConstraint([
    Sketcher.Constraint("Vertical", 0),
    Sketcher.Constraint("Horizontal", 1),
    Sketcher.Constraint("Vertical", 2),
    Sketcher.Constraint("Horizontal", 3),
    Sketcher.Constraint("DistanceX", 1, 1, 1, 2, Q("70 mm")),
    Sketcher.Constraint("DistanceY", 0, 2, 0, 1, Q("10 mm")),
    Sketcher.Constraint("DistanceX", 0, 2, -1, 1, Q("35 mm")),
    Sketcher.Constraint("DistanceY", 0, 2, -1, 1, Q("15 mm")),
])
sketch14.setExpression("Constraints[8]", "Params.sketch14_width")
sketch14.setExpression("Constraints[9]", "Params.sketch14_height")
pad14 = doc.addObject("PartDesign::Pad", "Pad013")
body30.addObject(pad14)
pad14.Profile = sketch14
pad14.setExpression("Length", "Params.pad14_length")
doc.recompute()

boolean19 = doc.addObject("PartDesign::Boolean", "Boolean018")
body30.addObject(boolean19)
boolean19.Type = "Fuse"
boolean19.addObjects([body])
doc.recompute()

boolean20 = doc.addObject("PartDesign::Boolean", "Boolean019")
body30.addObject(boolean20)
boolean20.Type = "Fuse"
boolean20.addObjects([body3])
doc.recompute()

boolean21 = doc.addObject("PartDesign::Boolean", "Boolean020")
body30.addObject(boolean21)
boolean21.Type = "Fuse"
boolean21.addObjects([body5])
doc.recompute()

boolean22 = doc.addObject("PartDesign::Boolean", "Boolean021")
body30.addObject(boolean22)
boolean22.Type = "Fuse"
boolean22.addObjects([body8])
doc.recompute()

boolean23 = doc.addObject("PartDesign::Boolean", "Boolean022")
body30.addObject(boolean23)
boolean23.Type = "Fuse"
boolean23.addObjects([body11])
doc.recompute()

boolean24 = doc.addObject("PartDesign::Boolean", "Boolean023")
body30.addObject(boolean24)
boolean24.Type = "Fuse"
boolean24.addObjects([body14])
doc.recompute()

boolean25 = doc.addObject("PartDesign::Boolean", "Boolean024")
body30.addObject(boolean25)
boolean25.Type = "Fuse"
boolean25.addObjects([body17])
doc.recompute()

boolean26 = doc.addObject("PartDesign::Boolean", "Boolean025")
body30.addObject(boolean26)
boolean26.Type = "Fuse"
boolean26.addObjects([body20])
doc.recompute()

boolean27 = doc.addObject("PartDesign::Boolean", "Boolean026")
body30.addObject(boolean27)
boolean27.Type = "Fuse"
boolean27.addObjects([body23])
doc.recompute()

boolean28 = doc.addObject("PartDesign::Boolean", "Boolean027")
body30.addObject(boolean28)
boolean28.Type = "Fuse"
boolean28.addObjects([body26])
doc.recompute()

boolean29 = doc.addObject("PartDesign::Boolean", "Boolean028")
body30.addObject(boolean29)
boolean29.Type = "Fuse"
boolean29.addObjects([body29])
body31 = doc.addObject("PartDesign::Body", "Body030")

sketch15 = doc.addObject("Sketcher::SketchObject", "Sketch014")
body31.addObject(sketch15)
sketch15.AttachmentSupport = (doc.getObject("XY_Plane030"), [""])
sketch15.MapMode = "FlatFace"
sketch15.AttachmentOffset = App.Placement(App.Vector(0, 0, -35), App.Rotation())
add_polygon(sketch15, [(-35, 10), (-35, -10), (35, -10), (35, 10)])
sketch15.addConstraint([
    Sketcher.Constraint("Vertical", 0),
    Sketcher.Constraint("Horizontal", 1),
    Sketcher.Constraint("Vertical", 2),
    Sketcher.Constraint("Horizontal", 3),
    Sketcher.Constraint("Symmetric", 0, 2, 2, 2, -1, 1),
    Sketcher.Constraint("DistanceX", 1, 1, 1, 2, Q("70 mm")),
    Sketcher.Constraint("DistanceY", 0, 2, 0, 1, Q("20 mm")),
])
sketch15.setExpression("Constraints[9]", "Params.sketch15_width")
sketch15.setExpression("Constraints[10]", "Params.sketch15_height")
pad15 = doc.addObject("PartDesign::Pad", "Pad014")
body31.addObject(pad15)
pad15.Profile = sketch15
pad15.setExpression("Length", "Params.pad15_length")
doc.recompute()

boolean30 = doc.addObject("PartDesign::Boolean", "Boolean029")
body31.addObject(boolean30)
boolean30.Type = "Cut"
boolean30.addObjects([body30])
body32 = doc.addObject("PartDesign::Body", "Body031")
doc.recompute()

body31.Placement = App.Placement(App.Vector(238, 200, 242), App.Rotation(App.Vector(1, 0, 0), 180))
boolean31 = doc.addObject("PartDesign::Boolean", "Boolean030")
body32.addObject(boolean31)
boolean31.Type = "Fuse"
boolean31.addObjects([body31])

doc.recompute()
